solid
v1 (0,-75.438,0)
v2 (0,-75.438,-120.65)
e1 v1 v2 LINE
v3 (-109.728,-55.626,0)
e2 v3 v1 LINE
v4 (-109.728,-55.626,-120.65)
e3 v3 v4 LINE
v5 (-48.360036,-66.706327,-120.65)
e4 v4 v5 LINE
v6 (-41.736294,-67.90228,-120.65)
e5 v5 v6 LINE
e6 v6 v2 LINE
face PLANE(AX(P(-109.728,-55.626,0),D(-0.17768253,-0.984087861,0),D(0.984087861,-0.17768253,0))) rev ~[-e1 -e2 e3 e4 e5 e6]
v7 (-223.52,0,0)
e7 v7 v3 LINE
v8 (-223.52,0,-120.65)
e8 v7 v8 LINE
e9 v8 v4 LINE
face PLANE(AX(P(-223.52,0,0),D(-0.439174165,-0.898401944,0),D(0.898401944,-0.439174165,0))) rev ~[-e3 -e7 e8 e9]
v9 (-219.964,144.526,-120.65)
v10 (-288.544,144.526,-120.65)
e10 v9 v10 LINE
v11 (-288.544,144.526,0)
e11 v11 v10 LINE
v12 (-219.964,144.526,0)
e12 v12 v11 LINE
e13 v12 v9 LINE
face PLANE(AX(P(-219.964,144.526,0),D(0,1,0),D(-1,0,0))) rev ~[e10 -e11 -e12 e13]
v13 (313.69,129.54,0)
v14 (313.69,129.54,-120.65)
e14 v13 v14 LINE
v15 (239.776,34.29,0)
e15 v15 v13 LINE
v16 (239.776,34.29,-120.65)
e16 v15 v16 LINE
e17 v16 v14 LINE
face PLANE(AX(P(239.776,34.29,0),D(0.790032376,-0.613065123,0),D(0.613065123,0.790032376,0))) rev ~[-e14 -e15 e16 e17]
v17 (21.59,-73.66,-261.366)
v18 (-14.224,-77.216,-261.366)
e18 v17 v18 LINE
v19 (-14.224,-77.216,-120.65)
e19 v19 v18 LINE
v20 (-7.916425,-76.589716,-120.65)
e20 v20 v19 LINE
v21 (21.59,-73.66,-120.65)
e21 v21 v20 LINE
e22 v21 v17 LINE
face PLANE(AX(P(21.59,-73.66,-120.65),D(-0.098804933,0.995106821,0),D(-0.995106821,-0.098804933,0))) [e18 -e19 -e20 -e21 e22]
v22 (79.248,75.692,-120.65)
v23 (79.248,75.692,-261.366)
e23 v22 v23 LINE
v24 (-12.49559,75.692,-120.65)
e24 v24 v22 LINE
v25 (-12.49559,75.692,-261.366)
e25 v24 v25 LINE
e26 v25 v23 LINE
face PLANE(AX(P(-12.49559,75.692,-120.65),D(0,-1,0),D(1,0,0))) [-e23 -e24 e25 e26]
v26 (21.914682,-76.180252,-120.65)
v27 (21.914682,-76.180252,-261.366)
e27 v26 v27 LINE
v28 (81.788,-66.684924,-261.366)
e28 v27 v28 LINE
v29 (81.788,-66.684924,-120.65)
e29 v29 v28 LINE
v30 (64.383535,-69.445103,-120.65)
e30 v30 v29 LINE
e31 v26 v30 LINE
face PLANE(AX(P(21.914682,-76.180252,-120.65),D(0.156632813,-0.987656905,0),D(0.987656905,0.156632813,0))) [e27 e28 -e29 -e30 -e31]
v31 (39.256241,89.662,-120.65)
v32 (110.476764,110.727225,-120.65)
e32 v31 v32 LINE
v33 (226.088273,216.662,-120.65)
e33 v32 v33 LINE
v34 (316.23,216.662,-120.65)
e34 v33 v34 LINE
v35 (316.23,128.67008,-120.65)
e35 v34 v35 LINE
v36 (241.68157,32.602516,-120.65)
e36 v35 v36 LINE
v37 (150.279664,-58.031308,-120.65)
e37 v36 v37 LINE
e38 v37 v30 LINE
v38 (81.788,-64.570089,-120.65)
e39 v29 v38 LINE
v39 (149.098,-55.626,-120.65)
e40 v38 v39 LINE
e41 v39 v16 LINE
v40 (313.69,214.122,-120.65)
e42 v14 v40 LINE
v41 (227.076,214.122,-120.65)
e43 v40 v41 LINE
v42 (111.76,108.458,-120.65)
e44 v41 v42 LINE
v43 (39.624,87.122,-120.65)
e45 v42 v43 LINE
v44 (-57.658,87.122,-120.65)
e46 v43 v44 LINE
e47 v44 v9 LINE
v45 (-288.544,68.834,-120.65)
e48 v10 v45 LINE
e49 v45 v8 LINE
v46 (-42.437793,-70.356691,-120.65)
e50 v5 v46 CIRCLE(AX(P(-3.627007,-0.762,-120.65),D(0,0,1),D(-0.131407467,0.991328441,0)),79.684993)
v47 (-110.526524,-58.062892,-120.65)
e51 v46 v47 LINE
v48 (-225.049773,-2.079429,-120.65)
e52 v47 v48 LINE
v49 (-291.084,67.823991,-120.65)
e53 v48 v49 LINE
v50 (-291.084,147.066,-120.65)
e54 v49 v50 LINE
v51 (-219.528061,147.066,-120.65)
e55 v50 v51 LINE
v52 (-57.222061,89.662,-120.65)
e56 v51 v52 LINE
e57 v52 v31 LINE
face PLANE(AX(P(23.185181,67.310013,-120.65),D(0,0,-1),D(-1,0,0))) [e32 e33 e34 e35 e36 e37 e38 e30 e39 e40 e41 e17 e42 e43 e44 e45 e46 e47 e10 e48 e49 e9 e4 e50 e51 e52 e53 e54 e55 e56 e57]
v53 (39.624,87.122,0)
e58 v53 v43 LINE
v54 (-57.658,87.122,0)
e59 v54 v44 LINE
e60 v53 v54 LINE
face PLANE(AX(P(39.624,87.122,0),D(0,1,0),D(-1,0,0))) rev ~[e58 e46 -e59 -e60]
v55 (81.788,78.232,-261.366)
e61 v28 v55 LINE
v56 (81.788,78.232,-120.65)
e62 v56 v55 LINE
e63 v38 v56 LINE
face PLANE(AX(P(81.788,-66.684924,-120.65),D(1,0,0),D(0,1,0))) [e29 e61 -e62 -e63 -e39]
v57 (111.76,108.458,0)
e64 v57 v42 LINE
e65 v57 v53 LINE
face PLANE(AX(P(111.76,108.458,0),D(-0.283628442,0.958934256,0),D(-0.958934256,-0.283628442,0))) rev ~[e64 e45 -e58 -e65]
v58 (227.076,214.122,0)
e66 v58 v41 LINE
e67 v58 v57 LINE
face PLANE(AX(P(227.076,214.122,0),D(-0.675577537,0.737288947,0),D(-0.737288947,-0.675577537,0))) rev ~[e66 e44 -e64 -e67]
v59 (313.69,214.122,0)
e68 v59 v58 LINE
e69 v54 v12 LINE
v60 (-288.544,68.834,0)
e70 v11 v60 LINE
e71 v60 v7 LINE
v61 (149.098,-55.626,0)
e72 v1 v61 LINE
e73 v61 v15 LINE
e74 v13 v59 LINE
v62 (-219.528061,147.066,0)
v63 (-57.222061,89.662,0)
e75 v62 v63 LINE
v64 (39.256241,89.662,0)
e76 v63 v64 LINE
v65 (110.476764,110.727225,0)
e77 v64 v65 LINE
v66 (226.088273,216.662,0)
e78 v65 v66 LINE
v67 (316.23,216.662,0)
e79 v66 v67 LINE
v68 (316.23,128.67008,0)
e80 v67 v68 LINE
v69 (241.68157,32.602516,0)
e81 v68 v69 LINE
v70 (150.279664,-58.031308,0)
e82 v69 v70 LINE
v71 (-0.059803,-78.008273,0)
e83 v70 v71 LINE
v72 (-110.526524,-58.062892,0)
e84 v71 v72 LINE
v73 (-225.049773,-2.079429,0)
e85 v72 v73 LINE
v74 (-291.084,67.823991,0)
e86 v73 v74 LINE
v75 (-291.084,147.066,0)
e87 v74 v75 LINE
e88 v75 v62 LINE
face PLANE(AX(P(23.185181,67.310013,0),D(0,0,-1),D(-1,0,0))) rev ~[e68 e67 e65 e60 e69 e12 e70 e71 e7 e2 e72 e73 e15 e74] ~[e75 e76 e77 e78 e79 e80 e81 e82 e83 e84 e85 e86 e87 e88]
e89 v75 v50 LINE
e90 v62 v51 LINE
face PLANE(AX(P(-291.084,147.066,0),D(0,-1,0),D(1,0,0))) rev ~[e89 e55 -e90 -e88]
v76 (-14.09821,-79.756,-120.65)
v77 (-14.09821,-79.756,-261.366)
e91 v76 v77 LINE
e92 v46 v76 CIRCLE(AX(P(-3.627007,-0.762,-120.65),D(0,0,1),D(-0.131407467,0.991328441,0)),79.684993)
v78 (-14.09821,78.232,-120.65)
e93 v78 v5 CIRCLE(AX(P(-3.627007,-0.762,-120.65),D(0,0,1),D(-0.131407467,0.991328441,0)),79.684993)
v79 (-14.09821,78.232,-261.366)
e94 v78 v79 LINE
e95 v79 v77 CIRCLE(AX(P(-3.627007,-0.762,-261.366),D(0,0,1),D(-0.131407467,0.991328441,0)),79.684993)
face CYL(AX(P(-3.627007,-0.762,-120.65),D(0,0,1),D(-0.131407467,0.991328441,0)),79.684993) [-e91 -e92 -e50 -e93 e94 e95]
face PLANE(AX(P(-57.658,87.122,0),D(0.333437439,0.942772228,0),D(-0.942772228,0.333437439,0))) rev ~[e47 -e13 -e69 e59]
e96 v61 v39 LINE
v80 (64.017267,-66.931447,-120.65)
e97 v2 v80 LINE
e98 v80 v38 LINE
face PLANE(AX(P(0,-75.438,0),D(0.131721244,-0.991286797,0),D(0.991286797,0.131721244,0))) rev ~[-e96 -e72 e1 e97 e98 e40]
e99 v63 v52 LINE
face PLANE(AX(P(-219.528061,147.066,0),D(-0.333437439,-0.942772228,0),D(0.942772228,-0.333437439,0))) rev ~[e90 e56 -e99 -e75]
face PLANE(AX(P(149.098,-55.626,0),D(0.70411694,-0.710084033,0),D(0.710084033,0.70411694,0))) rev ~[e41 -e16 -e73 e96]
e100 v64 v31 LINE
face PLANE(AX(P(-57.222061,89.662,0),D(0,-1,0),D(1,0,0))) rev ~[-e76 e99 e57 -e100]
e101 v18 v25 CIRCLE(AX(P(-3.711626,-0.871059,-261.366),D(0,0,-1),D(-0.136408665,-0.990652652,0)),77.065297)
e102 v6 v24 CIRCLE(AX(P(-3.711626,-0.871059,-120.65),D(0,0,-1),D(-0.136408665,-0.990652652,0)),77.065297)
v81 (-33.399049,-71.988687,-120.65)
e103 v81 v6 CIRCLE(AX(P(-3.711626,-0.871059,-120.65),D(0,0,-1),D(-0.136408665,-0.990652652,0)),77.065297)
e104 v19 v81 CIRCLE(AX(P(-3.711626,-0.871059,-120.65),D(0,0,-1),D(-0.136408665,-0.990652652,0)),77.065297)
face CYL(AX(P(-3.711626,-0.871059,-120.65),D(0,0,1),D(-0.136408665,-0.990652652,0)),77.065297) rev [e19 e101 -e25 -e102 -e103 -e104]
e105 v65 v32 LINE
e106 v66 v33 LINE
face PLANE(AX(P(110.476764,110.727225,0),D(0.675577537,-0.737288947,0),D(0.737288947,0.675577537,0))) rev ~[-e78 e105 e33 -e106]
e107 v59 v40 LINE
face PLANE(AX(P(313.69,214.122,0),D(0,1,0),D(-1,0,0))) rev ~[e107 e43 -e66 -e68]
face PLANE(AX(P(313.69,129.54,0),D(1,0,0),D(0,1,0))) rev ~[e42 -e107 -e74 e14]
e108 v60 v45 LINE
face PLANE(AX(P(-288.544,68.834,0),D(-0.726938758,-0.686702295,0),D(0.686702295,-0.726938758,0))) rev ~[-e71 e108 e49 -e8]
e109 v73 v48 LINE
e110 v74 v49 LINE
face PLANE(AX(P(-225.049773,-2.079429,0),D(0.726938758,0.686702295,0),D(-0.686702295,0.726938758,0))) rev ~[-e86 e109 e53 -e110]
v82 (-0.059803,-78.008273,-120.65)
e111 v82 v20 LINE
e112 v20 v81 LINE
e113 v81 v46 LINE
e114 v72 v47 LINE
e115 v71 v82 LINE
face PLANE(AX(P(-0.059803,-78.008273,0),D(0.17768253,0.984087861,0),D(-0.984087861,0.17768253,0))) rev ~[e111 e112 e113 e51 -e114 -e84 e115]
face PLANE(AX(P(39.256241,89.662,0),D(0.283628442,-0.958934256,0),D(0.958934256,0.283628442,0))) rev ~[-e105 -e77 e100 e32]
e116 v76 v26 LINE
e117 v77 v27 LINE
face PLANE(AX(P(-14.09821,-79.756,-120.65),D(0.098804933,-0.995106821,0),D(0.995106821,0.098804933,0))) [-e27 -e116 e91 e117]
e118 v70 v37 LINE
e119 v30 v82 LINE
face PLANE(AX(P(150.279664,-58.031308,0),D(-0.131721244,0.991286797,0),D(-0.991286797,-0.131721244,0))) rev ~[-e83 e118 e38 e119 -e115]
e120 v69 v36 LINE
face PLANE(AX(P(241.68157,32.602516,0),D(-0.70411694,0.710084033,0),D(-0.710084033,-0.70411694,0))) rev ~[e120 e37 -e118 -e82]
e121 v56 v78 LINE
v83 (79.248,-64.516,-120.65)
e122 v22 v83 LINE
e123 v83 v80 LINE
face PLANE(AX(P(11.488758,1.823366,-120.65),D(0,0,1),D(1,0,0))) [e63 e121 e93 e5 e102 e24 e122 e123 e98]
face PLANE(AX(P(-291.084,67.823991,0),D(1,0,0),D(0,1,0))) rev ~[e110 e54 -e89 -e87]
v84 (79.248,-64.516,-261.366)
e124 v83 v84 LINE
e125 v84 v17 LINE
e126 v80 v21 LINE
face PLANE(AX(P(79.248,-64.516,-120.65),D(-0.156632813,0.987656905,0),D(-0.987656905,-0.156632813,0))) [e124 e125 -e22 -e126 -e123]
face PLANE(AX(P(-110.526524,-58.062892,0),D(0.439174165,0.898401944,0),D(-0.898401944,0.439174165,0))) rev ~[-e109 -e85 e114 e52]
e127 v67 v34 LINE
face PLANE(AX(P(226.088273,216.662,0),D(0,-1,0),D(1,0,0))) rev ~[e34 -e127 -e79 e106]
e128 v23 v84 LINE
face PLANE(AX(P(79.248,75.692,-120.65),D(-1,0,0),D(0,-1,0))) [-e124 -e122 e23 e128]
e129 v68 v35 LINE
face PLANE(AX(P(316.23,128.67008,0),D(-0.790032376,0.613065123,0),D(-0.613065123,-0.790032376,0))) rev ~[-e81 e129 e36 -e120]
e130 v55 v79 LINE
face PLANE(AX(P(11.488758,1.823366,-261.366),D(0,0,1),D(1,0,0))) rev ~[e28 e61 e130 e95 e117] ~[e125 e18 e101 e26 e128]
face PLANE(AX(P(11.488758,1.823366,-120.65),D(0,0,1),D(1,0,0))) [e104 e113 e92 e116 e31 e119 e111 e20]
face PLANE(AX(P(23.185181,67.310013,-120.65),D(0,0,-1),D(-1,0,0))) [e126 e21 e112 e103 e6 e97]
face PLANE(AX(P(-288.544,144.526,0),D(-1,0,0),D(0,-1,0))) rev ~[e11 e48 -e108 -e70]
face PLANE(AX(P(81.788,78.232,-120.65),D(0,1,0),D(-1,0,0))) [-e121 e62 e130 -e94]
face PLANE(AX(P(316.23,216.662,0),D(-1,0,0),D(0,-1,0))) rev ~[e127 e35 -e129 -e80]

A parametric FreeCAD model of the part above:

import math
import FreeCAD as App
import Part
import Sketcher

V = App.Vector
Q = App.Units.Quantity


def add_polygon(sketch, points):
    """Adds a closed chain of lines whose ends are joined by coincident constraints."""
    first, n = sketch.GeometryCount, len(points)
    for a, b in zip(points, points[1:] + points[:1]):
        sketch.addGeometry(Part.LineSegment(App.Vector(*a, 0), App.Vector(*b, 0)), False)
    for i in range(n):
        sketch.addConstraint(Sketcher.Constraint("Coincident", first + i, 2, first + (i + 1) % n, 1))

doc = App.newDocument("Part")
body = doc.addObject("PartDesign::Body", "Body")

# Sketch on XY plane
sketch1 = doc.addObject("Sketcher::SketchObject", "Sketch")
body.addObject(sketch1)
sketch1.AttachmentSupport = (doc.XY_Plane, [""])
sketch1.MapMode = "FlatFace"
add_polygon(sketch1, [(-220, 147), (-291, 147), (-291, 68), (-225, -2), (-111, -58), (0, -78), (150, -58), (242, 33), (316, 129), (316, 217), (226, 217), (110, 111), (39, 90), (-57, 90)])  # lines 0-13
add_polygon(sketch1, [(112, 108), (227, 214), (314, 214), (314, 130), (240, 34), (149, -56), (0, -75), (-110, -56), (-224, 0), (-289, 69), (-289, 145), (-220, 145), (-58, 87), (40, 87)])  # lines 14-27
sketch1.addConstraint([
    Sketcher.Constraint("Horizontal", 0),
    Sketcher.Constraint("Vertical", 1),
    Sketcher.Constraint("Vertical", 8),
    Sketcher.Constraint("Horizontal", 9),
    Sketcher.Constraint("Horizontal", 12),
    Sketcher.Constraint("Horizontal", 15),
    Sketcher.Constraint("Vertical", 16),
    Sketcher.Constraint("Vertical", 23),
    Sketcher.Constraint("Horizontal", 24),
    Sketcher.Constraint("Horizontal", 26),
    Sketcher.Constraint("PointOnObject", 19, 2, -2),
    Sketcher.Constraint("PointOnObject", 21, 2, -1),
    Sketcher.Constraint("Parallel", 10, 14),
    Sketcher.Constraint("Parallel", 7, 17),
    Sketcher.Constraint("Parallel", 6, 18),
    Sketcher.Constraint("Parallel", 5, 19),
    Sketcher.Constraint("Parallel", 4, 20),
    Sketcher.Constraint("Parallel", 3, 21),
    Sketcher.Constraint("Parallel", 2, 22),
    Sketcher.Constraint("Parallel", 13, 25),
    Sketcher.Constraint("Parallel", 11, 27),
    Sketcher.Constraint("Horizontal", 18, 2, 20, 2),
    Sketcher.Constraint("Equal", 13, 25),
    Sketcher.Constraint("DistanceX", 24, 1, 24, 2, Q("2.7 in")),
    Sketcher.Constraint("DistanceX", 15, 1, 15, 2, Q("3.41 in")),
    Sketcher.Constraint("DistanceX", 26, 1, 26, 2, Q("3.83 in")),
    Sketcher.Constraint("DistanceY", 16, 2, 16, 1, Q("3.33 in")),
    Sketcher.Constraint("DistanceY", 23, 1, 23, 2, Q("2.98 in")),
    Sketcher.Constraint("DistanceY", -1, 1, 16, 2, Q("5.1 in")),
    Sketcher.Constraint("DistanceX", 21, 2, -1, 1, Q("8.8 in")),
    Sketcher.Constraint("DistanceX", -1, 1, 27, 2, Q("4.4 in")),
    Sketcher.Constraint("DistanceY", 14, 2, 9, 2, Q("0.1 in")),
    Sketcher.Constraint("DistanceX", 15, 2, 8, 2, Q("0.1 in")),
    Sketcher.Constraint("DistanceY", 19, 2, 11, 2, Q("6.5 in")),
    Sketcher.Constraint("DistanceX", 1, 2, 22, 2, Q("0.1 in")),
    Sketcher.Constraint("DistanceY", 23, 2, 0, 2, Q("0.1 in")),
    Sketcher.Constraint("DistanceX", 0, 2, -1, 1, Q("11.46 in")),
    Sketcher.Constraint("DistanceY", -1, 1, 0, 2, Q("5.79 in")),
    Sketcher.Constraint("DistanceX", -1, 1, 7, 2, Q("12.45 in")),
    Sketcher.Constraint("DistanceY", -1, 1, 11, 2, Q("3.53 in")),
    Sketcher.Constraint("DistanceX", -1, 1, 17, 2, Q("9.44 in")),
    Sketcher.Constraint("DistanceY", -1, 1, 17, 2, Q("1.35 in")),
    Sketcher.Constraint("DistanceX", -1, 1, 18, 2, Q("5.87 in")),
    Sketcher.Constraint("DistanceY", 18, 2, -1, 1, Q("2.19 in")),
    Sketcher.Constraint("DistanceX", 20, 2, -1, 1, Q("4.32 in")),
    Sketcher.Constraint("DistanceX", 25, 2, -1, 1, Q("2.27 in")),
    Sketcher.Constraint("DistanceY", -1, 1, 27, 2, Q("4.27 in")),
    Sketcher.Constraint("DistanceX", 12, 2, 12, 1, 96.478301),
    Sketcher.Constraint("Distance", 3, 127.4744),
    Sketcher.Constraint("DistanceX", 0, 2, 0, 1, 71.555939),
    Sketcher.Constraint("DistanceY", 1, 2, 1, 1, 79.242009),
    Sketcher.Constraint("DistanceY", 8, 1, 8, 2, 87.99192),
    Sketcher.Constraint("DistanceY", 5, 2, 1, 2, 125.855299),
    Sketcher.Constraint("DistanceX", 10, 2, 5, 2, 39.802899),
    Sketcher.Constraint("Distance", 2, 96.161361),
    Sketcher.Constraint("Distance", 5, 151.660919),
])
pad1 = doc.addObject("PartDesign::Pad", "Pad")
body.addObject(pad1)
pad1.Profile = sketch1
pad1.Length = Q("4.75 in")
pad1.Reversed = True

# Sketch on XY plane
sketch2 = doc.addObject("Sketcher::SketchObject", "Sketch001")
body.addObject(sketch2)
sketch2.AttachmentSupport = (doc.XY_Plane, [""])
sketch2.MapMode = "FlatFace"
sketch2.AttachmentOffset = App.Placement(V(0, 0, -4.75 * 25.4), App.Rotation())
sketch2.addGeometry([
    Part.LineSegment(V(-14, 78, 0), V(82, 78, 0)),  # 0
    Part.LineSegment(V(82, 78, 0), V(82, -67, 0)),  # 1
    Part.LineSegment(V(82, -67, 0), V(22, -76, 0)),  # 2
    Part.LineSegment(V(22, -76, 0), V(-14, -80, 0)),  # 3
    Part.ArcOfCircle(Part.Circle(V(-4, -1, 0), V(0, 0, 1), 80), math.radians(98), math.radians(262)),  # 4
    Part.LineSegment(V(79, 76, 0), V(-12, 76, 0)),  # 5
    Part.ArcOfCircle(Part.Circle(V(-4, -1, 0), V(0, 0, 1), 77), math.radians(97), math.radians(262)),  # 6
    Part.LineSegment(V(-14, -77, 0), V(22, -74, 0)),  # 7
    Part.LineSegment(V(22, -74, 0), V(79, -65, 0)),  # 8
    Part.LineSegment(V(79, -65, 0), V(79, 76, 0)),  # 9
], False)
sketch2.addConstraint([
    Sketcher.Constraint("Coincident", 0, 2, 1, 1),
    Sketcher.Constraint("Coincident", 1, 2, 2, 1),
    Sketcher.Constraint("Coincident", 2, 2, 3, 1),
    Sketcher.Constraint("Coincident", 3, 2, 4, 2),
    Sketcher.Constraint("Coincident", 4, 1, 0, 1),
    Sketcher.Constraint("Coincident", 5, 2, 6, 1),
    Sketcher.Constraint("Coincident", 6, 2, 7, 1),
    Sketcher.Constraint("Coincident", 7, 2, 8, 1),
    Sketcher.Constraint("Coincident", 8, 2, 9, 1),
    Sketcher.Constraint("Coincident", 9, 2, 5, 1),
    Sketcher.Constraint("Horizontal", 0),
    Sketcher.Constraint("Vertical", 1),
    Sketcher.Constraint("Horizontal", 5),
    Sketcher.Constraint("Vertical", 9),
    Sketcher.Constraint("Parallel", 3, 7),
    Sketcher.Constraint("Parallel", 2, 8),
    Sketcher.Constraint("Vertical", 3, 2, 4, 1),
    Sketcher.Constraint("DistanceY", 9, 1, 9, 2, Q("5.52 in")),
    Sketcher.Constraint("DistanceY", 7, 2, -1, 1, Q("2.9 in")),
    Sketcher.Constraint("DistanceY", 5, 2, 4, 1, Q("0.1 in")),
    Sketcher.Constraint("DistanceY", 3, 2, 6, 2, Q("0.1 in")),
    Sketcher.Constraint("DistanceX", 8, 2, 1, 2, Q("0.1 in")),
    Sketcher.Constraint("DistanceY", 6, 2, 8, 2, Q("0.5 in")),
    Sketcher.Constraint("DistanceY", 4, 3, -1, 1, Q("0.03 in")),
    Sketcher.Constraint("DistanceX", -1, 1, 0, 2, Q("3.22 in")),
    Sketcher.Constraint("DistanceX", 6, 2, -1, 1, Q("0.56 in")),
    Sketcher.Constraint("DistanceX", -1, 1, 7, 2, Q("0.85 in")),
    Sketcher.Constraint("Radius", 4, 79.684993),
    Sketcher.Constraint("Radius", 6, 77.065297),
    Sketcher.Constraint("DistanceX", 0, 1, 0, 2, 95.88621),
    Sketcher.Constraint("DistanceX", 5, 2, 5, 1, 91.74359),
    Sketcher.Constraint("DistanceY", 1, 2, 1, 1, 144.916924),
])
pad2 = doc.addObject("PartDesign::Pad", "Pad001")
body.addObject(pad2)
pad2.Profile = sketch2
pad2.Length = Q("5.54 in")
pad2.Reversed = True

doc.recompute()
